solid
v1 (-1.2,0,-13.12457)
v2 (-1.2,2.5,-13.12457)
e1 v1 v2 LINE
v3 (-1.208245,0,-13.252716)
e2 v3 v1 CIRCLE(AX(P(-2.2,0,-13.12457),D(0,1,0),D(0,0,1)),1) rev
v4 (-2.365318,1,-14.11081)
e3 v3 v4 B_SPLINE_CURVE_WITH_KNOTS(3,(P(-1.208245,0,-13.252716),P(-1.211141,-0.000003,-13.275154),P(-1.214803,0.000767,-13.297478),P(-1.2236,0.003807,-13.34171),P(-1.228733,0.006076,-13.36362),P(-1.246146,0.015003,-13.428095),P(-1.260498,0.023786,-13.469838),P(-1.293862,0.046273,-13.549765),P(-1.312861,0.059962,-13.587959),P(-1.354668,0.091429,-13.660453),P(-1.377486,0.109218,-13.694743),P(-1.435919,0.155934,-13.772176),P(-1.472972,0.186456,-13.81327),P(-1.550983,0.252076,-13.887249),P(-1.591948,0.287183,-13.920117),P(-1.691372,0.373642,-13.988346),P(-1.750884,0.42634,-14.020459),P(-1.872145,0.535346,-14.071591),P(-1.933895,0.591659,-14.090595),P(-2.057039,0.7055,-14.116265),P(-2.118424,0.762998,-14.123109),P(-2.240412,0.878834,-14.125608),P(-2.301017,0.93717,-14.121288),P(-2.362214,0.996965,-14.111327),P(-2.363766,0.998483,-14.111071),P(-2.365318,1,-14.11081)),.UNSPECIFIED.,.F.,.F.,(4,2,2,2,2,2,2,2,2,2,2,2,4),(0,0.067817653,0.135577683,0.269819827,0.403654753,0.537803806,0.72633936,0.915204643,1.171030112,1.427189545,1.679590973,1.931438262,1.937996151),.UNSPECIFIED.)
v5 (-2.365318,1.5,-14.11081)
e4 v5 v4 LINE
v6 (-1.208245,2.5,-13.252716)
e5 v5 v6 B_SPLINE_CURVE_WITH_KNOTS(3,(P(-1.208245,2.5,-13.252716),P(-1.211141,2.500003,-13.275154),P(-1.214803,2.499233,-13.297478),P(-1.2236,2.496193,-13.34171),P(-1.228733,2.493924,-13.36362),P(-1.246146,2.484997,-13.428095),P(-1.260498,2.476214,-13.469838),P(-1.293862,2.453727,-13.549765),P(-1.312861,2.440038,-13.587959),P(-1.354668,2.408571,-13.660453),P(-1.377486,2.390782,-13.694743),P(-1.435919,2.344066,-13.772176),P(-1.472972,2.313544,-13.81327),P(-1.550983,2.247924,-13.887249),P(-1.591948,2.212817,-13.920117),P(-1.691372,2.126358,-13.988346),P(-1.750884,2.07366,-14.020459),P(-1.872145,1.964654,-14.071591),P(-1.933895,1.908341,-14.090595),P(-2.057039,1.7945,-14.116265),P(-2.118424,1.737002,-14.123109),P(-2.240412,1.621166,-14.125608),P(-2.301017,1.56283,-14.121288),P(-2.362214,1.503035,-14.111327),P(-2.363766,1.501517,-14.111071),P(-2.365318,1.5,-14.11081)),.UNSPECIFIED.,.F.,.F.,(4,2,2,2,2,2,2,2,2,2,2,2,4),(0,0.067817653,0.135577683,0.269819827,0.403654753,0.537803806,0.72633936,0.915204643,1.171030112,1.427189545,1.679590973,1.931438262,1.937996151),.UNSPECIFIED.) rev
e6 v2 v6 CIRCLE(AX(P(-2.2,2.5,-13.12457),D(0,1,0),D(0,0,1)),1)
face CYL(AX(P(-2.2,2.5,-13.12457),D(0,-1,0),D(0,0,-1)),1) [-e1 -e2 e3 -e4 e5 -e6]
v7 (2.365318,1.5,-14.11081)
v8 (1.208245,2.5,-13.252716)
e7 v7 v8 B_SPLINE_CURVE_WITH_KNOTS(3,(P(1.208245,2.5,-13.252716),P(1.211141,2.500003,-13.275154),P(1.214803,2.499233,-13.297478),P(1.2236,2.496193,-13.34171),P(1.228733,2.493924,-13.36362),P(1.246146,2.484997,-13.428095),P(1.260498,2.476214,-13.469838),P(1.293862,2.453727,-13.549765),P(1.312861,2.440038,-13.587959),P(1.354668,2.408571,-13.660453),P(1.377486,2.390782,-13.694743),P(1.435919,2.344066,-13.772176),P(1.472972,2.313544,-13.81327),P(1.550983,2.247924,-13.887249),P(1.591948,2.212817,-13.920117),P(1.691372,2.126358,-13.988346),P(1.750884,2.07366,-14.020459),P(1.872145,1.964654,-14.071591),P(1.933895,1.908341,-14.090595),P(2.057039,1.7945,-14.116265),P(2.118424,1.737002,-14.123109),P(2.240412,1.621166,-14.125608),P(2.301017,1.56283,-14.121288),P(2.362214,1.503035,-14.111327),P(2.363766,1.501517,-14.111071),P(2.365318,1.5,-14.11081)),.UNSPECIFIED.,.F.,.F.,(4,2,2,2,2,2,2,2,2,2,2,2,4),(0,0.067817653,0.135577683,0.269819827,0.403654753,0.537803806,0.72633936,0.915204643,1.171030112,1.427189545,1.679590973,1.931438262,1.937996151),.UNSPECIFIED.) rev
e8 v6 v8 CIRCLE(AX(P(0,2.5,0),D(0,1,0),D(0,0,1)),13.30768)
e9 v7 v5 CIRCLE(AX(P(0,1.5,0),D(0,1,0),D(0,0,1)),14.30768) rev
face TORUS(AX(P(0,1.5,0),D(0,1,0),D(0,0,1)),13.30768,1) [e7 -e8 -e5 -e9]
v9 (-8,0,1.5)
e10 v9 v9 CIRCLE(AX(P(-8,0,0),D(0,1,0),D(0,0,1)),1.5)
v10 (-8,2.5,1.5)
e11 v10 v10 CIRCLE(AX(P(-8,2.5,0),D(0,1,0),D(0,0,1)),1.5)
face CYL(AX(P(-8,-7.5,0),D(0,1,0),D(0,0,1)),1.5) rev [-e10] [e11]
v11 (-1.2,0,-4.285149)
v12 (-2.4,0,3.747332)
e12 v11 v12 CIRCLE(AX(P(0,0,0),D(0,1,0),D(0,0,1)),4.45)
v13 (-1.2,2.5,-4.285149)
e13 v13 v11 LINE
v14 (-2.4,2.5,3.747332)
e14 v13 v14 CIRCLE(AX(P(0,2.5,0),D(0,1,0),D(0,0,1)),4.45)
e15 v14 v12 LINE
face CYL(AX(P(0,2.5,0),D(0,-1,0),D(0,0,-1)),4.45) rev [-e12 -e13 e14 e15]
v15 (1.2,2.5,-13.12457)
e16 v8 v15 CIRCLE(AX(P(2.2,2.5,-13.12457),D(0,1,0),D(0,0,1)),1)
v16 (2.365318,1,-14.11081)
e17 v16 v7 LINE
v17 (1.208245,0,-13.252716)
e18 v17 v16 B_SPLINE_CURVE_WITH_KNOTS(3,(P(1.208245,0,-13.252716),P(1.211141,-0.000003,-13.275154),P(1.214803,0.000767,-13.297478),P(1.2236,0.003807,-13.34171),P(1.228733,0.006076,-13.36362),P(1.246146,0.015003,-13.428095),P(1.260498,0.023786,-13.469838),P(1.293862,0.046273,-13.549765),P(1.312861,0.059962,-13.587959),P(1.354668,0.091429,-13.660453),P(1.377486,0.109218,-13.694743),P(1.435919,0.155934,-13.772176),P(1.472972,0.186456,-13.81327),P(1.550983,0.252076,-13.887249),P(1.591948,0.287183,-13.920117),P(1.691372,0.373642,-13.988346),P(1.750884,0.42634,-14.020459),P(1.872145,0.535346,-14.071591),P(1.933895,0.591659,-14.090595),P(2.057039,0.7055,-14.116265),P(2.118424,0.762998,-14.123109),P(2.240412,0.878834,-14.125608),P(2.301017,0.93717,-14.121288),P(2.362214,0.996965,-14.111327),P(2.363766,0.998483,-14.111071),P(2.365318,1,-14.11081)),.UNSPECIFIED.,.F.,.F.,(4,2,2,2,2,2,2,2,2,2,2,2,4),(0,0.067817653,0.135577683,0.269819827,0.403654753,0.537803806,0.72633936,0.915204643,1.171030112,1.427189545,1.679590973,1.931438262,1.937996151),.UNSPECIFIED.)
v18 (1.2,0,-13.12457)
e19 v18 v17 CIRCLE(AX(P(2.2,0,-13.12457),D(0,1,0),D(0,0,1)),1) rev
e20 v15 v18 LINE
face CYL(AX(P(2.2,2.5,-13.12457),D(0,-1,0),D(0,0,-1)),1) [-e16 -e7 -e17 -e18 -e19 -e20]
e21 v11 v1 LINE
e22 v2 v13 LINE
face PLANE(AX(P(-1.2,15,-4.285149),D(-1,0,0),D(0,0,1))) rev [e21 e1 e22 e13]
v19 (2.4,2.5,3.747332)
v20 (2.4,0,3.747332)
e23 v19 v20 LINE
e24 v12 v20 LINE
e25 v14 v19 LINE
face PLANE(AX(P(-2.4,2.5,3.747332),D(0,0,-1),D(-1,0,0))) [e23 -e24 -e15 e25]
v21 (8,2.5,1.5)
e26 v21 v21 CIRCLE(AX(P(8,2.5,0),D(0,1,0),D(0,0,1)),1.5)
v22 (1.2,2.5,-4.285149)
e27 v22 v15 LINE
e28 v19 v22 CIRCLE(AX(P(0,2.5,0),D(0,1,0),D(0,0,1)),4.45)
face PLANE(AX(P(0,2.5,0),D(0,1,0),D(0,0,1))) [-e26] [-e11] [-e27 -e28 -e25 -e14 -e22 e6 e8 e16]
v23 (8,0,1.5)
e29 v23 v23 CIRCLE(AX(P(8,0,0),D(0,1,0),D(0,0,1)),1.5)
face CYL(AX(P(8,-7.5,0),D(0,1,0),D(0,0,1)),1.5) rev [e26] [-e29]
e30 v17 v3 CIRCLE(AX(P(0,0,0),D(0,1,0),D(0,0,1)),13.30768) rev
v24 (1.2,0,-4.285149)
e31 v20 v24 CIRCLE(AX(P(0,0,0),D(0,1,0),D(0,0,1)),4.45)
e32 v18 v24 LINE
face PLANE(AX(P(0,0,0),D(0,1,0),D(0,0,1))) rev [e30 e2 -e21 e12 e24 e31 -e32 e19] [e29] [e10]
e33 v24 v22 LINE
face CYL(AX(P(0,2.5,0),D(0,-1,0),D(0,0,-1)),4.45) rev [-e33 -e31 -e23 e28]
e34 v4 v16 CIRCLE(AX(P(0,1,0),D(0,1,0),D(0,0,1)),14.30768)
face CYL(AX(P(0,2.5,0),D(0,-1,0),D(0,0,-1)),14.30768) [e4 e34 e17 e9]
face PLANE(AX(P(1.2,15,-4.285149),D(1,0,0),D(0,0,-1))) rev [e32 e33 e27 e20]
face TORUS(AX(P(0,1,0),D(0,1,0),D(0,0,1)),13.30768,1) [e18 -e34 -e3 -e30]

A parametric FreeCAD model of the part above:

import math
import FreeCAD as App
import Part
import Sketcher


def edges_at(feature, points):
    """Names of the edges that pass closest to the given points."""
    edges = feature.Shape.Edges
    near = lambda p: min(range(len(edges)), key=lambda i: edges[i].distToShape(Part.Vertex(*p))[0])
    return sorted({f"Edge{near(p) + 1}" for p in points})

doc = App.newDocument("Part")
params = doc.addObject("Spreadsheet::Sheet", "Params")
for row, (alias, value) in enumerate([
    ("sketch1_radius", "4.45 mm"),
    ("sketch1_width", "4.8 mm"),
    ("pad1_length", "2.5 mm"),
    ("sketch2_radius", "4.45 mm"),
    ("pocket1_length", "15 mm"),
    ("fillet_radius", "1 mm"),
    ("sketch3_diameter", "3 mm"),
    ("pocket2_length", "10 mm"),
], start=1):
    params.set(f"A{row}", alias)
    params.set(f"B{row}", "=" + value)
    params.setAlias(f"B{row}", alias)

body = doc.addObject("PartDesign::Body", "Body")

# Sketch on XZ plane
sketch1 = body.newObject("Sketcher::SketchObject", "Sketch")
sketch1.AttachmentSupport = (doc.getObject("XZ_Plane"), [""])
sketch1.MapMode = "FlatFace"
sketch1.addGeometry(Part.Circle(App.Vector(0, 0, 0), App.Vector(0, 0, 1), 14.3), False)
sketch1.addGeometry(Part.LineSegment(App.Vector(2.4, 3.7, 0), App.Vector(-2.4, 3.7, 0)), False)
sketch1.addGeometry(Part.ArcOfCircle(Part.Circle(App.Vector(0, 0, 0), App.Vector(0, 0, 1), 4.5), math.radians(123), math.radians(417)), False)
sketch1.addConstraint(Sketcher.Constraint("Coincident", 1, 1, 2, 2))
sketch1.addConstraint(Sketcher.Constraint("Coincident", 2, 1, 1, 2))
sketch1.addConstraint(Sketcher.Constraint("Horizontal", 1))
sketch1.addConstraint(Sketcher.Constraint("Coincident", 0, 3, -1, 1))
sketch1.addConstraint(Sketcher.Constraint("Coincident", 2, 3, -1, 1))
sketch1.addConstraint(Sketcher.Constraint("Radius", 2, 4.45))
sketch1.addConstraint(Sketcher.Constraint("DistanceX", 1, 2, 1, 1, 4.8))
sketch1.addConstraint(Sketcher.Constraint("Diameter", 0, 28.61536))
sketch1.setExpression("Constraints[5]", "Params.sketch1_radius")
sketch1.setExpression("Constraints[6]", "Params.sketch1_width")
pad1 = body.newObject("PartDesign::Pad", "Pad")
pad1.Profile = sketch1
pad1.setExpression("Length", "Params.pad1_length")
pad1.Reversed = True

# Sketch on XZ plane
sketch2 = body.newObject("Sketcher::SketchObject", "Sketch001")
sketch2.AttachmentSupport = (doc.getObject("XZ_Plane"), [""])
sketch2.MapMode = "FlatFace"
sketch2.addGeometry(Part.LineSegment(App.Vector(-1.2, -4.3, 0), App.Vector(-1.2, -14.3, 0)), False)
sketch2.addGeometry(Part.ArcOfCircle(Part.Circle(App.Vector(0, 0, 0), App.Vector(0, 0, 1), 14.3), math.radians(-94.81), math.radians(-85.19)), False)
sketch2.addGeometry(Part.LineSegment(App.Vector(1.2, -14.3, 0), App.Vector(1.2, -4.3, 0)), False)
sketch2.addGeometry(Part.ArcOfCircle(Part.Circle(App.Vector(0, 0, 0), App.Vector(0, 0, 1), 4.4), math.radians(-106), math.radians(-74)), False)
sketch2.addConstraint(Sketcher.Constraint("Coincident", 0, 2, 1, 1))
sketch2.addConstraint(Sketcher.Constraint("Coincident", 1, 2, 2, 1))
sketch2.addConstraint(Sketcher.Constraint("Coincident", 2, 2, 3, 2))
sketch2.addConstraint(Sketcher.Constraint("Coincident", 3, 1, 0, 1))
sketch2.addConstraint(Sketcher.Constraint("Vertical", 0))
sketch2.addConstraint(Sketcher.Constraint("Vertical", 2))
sketch2.addConstraint(Sketcher.Constraint("Coincident", 1, 3, -1, 1))
sketch2.addConstraint(Sketcher.Constraint("Coincident", 3, 3, -1, 1))
sketch2.addConstraint(Sketcher.Constraint("Horizontal", 0, 2, 1, 2))
sketch2.addConstraint(Sketcher.Constraint("Radius", 3, 4.45))
sketch2.addConstraint(Sketcher.Constraint("DistanceX", 0, 2, -1, 1, 1.2))
sketch2.addConstraint(Sketcher.Constraint("Radius", 1, 14.30768))
sketch2.setExpression("Constraints[9]", "Params.sketch2_radius")
pocket1 = body.newObject("PartDesign::Pocket", "Pocket")
pocket1.Profile = sketch2
pocket1.setExpression("Length", "Params.pocket1_length")
doc.recompute()

fillet = body.newObject("PartDesign::Fillet", "Fillet")
fillet.Base = (pocket1, edges_at(pocket1, [
    (14.295, 2.5, 0.601),
    (14.295, 0, 0.601),
    (1.2, 1.25, -14.257),
    (-1.2, 1.25, -14.257),
]))
fillet.setExpression("Radius", "Params.fillet_radius")

# Sketch on XZ plane
sketch3 = body.newObject("Sketcher::SketchObject", "Sketch002")
sketch3.AttachmentSupport = (doc.getObject("XZ_Plane"), [""])
sketch3.MapMode = "FlatFace"
sketch3.AttachmentOffset = App.Placement(App.Vector(0, 0, -2.5), App.Rotation())
sketch3.addGeometry(Part.Circle(App.Vector(8, 0, 0), App.Vector(0, 0, 1), 1.5), False)
sketch3.addGeometry(Part.Circle(App.Vector(-8, 0, 0), App.Vector(0, 0, 1), 1.5), False)
sketch3.addConstraint(Sketcher.Constraint("Equal", 0, 1))
sketch3.addConstraint(Sketcher.Constraint("Symmetric", 0, 3, 1, 3, -1, 1))
sketch3.addConstraint(Sketcher.Constraint("PointOnObject", 0, 3, -1))
sketch3.addConstraint(Sketcher.Constraint("Diameter", 0, 3.0))
sketch3.addConstraint(Sketcher.Constraint("DistanceX", -1, 1, 0, 3, 8.0))
sketch3.setExpression("Constraints[3]", "Params.sketch3_diameter")
pocket2 = body.newObject("PartDesign::Pocket", "Pocket001")
pocket2.Profile = sketch3
pocket2.setExpression("Length", "Params.pocket2_length")
pocket2.Reversed = True

doc.recompute()
